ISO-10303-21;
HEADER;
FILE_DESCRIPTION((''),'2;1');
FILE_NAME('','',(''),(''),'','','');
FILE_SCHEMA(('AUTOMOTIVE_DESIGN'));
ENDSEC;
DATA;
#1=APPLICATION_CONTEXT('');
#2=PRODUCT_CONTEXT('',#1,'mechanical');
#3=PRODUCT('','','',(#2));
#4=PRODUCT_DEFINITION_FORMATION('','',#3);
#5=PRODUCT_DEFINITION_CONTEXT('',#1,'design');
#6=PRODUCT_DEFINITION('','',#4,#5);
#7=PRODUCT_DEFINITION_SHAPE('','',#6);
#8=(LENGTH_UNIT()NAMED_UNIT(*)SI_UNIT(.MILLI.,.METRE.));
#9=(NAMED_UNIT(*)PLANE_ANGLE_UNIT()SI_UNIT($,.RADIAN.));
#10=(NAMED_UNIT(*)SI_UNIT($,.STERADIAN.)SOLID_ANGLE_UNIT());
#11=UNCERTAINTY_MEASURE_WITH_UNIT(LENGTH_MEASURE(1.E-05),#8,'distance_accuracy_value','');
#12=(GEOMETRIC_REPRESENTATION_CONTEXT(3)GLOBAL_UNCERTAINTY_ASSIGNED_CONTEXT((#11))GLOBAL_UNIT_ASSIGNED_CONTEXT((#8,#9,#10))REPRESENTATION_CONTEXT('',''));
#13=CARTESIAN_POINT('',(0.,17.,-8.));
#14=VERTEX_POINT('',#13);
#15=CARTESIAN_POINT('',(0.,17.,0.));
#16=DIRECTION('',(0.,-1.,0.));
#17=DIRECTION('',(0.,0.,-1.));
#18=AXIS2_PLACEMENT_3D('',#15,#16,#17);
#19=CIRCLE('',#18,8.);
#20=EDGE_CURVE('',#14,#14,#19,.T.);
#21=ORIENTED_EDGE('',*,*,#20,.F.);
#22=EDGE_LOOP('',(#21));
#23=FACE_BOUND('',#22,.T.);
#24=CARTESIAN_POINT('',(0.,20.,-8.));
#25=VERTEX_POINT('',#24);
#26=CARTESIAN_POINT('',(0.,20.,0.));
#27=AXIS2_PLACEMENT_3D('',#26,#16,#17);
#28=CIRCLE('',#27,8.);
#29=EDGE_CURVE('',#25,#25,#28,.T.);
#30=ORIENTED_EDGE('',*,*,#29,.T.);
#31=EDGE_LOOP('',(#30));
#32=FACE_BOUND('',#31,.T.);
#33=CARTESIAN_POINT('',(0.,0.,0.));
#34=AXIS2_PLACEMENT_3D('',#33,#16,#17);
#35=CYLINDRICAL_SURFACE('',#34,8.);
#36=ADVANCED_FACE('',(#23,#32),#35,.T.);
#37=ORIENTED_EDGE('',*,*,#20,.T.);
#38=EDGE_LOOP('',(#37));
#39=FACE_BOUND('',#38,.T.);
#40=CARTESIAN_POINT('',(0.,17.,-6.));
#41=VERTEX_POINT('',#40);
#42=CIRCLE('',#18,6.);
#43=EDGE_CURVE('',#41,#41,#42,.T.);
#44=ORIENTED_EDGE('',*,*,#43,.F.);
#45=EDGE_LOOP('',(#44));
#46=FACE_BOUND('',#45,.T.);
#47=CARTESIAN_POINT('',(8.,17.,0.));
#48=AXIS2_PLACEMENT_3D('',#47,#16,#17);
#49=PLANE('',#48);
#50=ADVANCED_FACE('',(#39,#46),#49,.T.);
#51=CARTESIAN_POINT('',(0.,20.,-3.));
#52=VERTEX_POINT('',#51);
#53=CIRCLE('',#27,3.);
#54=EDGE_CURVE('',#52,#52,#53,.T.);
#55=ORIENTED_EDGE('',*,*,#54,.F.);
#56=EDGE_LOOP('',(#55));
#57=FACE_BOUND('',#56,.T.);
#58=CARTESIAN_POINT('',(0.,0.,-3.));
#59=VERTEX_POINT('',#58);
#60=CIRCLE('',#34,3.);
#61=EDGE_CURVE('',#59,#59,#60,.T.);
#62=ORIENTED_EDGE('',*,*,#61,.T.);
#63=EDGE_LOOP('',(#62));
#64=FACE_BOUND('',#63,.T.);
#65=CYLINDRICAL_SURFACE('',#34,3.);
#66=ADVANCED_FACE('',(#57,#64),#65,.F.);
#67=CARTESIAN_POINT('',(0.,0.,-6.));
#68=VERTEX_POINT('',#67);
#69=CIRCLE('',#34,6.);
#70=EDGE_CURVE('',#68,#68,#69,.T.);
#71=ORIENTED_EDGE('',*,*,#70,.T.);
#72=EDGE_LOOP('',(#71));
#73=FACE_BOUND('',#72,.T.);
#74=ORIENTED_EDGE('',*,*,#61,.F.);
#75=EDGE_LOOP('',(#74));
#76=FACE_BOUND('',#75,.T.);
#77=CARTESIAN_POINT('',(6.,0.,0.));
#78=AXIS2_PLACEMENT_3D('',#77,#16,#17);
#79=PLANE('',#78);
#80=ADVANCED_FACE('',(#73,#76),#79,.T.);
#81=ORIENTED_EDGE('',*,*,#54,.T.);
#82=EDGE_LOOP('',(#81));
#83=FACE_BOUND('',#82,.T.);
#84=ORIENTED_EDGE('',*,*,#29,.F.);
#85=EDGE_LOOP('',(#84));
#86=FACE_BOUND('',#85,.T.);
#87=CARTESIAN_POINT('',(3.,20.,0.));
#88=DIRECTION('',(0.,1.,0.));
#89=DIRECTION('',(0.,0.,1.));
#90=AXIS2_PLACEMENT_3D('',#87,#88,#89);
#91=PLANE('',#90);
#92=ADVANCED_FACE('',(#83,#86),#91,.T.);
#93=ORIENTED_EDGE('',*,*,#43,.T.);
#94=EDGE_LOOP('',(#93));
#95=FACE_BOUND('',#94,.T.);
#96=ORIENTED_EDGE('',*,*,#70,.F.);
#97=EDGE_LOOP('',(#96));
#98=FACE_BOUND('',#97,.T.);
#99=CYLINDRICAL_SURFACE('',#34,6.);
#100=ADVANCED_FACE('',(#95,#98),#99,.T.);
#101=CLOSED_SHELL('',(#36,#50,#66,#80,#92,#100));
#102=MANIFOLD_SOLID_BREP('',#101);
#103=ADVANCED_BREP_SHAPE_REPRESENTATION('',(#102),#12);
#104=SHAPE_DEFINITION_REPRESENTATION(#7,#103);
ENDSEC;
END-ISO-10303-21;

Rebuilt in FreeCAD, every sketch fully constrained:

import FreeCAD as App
import Part
import Sketcher

V = App.Vector

doc = App.newDocument("Part")
body = doc.addObject("PartDesign::Body", "Body")

sketch1 = body.newObject("Sketcher::SketchObject", "Sketch")
sketch1.AttachmentSupport = (doc.getObject("XY_Plane"), [""])
sketch1.MapMode = "FlatFace"
sketch1.addGeometry(Part.LineSegment(V(3, 20, 0), V(3, 0, 0)), False)
sketch1.addGeometry(Part.LineSegment(V(3, 0, 0), V(6, 0, 0)), False)
sketch1.addGeometry(Part.LineSegment(V(6, 0, 0), V(6, 17, 0)), False)
sketch1.addGeometry(Part.LineSegment(V(6, 17, 0), V(8, 17, 0)), False)
sketch1.addGeometry(Part.LineSegment(V(8, 17, 0), V(8, 20, 0)), False)
sketch1.addGeometry(Part.LineSegment(V(8, 20, 0), V(3, 20, 0)), False)
sketch1.addConstraint(Sketcher.Constraint("Coincident", 0, 2, 1, 1))
sketch1.addConstraint(Sketcher.Constraint("Coincident", 1, 2, 2, 1))
sketch1.addConstraint(Sketcher.Constraint("Coincident", 2, 2, 3, 1))
sketch1.addConstraint(Sketcher.Constraint("Coincident", 3, 2, 4, 1))
sketch1.addConstraint(Sketcher.Constraint("Coincident", 4, 2, 5, 1))
sketch1.addConstraint(Sketcher.Constraint("Coincident", 5, 2, 0, 1))
sketch1.addConstraint(Sketcher.Constraint("Vertical", 0))
sketch1.addConstraint(Sketcher.Constraint("Horizontal", 1))
sketch1.addConstraint(Sketcher.Constraint("Vertical", 2))
sketch1.addConstraint(Sketcher.Constraint("Horizontal", 3))
sketch1.addConstraint(Sketcher.Constraint("Vertical", 4))
sketch1.addConstraint(Sketcher.Constraint("Horizontal", 5))
sketch1.addConstraint(Sketcher.Constraint("PointOnObject", 0, 2, -1))
sketch1.addConstraint(Sketcher.Constraint("Equal", 1, 4))
sketch1.addConstraint(Sketcher.Constraint("DistanceX", 1, 1, 1, 2, 3.0))
sketch1.addConstraint(Sketcher.Constraint("DistanceX", 3, 1, 3, 2, 2.0))
sketch1.addConstraint(Sketcher.Constraint("DistanceY", 0, 2, 0, 1, 20.0))
sketch1.addConstraint(Sketcher.Constraint("DistanceX", -1, 1, 0, 2, 3.0))
revolution = body.newObject("PartDesign::Revolution", "Revolution")
revolution.Profile = sketch1
revolution.ReferenceAxis = (sketch1, ["V_Axis"])
revolution.Angle = 360

doc.recompute()
